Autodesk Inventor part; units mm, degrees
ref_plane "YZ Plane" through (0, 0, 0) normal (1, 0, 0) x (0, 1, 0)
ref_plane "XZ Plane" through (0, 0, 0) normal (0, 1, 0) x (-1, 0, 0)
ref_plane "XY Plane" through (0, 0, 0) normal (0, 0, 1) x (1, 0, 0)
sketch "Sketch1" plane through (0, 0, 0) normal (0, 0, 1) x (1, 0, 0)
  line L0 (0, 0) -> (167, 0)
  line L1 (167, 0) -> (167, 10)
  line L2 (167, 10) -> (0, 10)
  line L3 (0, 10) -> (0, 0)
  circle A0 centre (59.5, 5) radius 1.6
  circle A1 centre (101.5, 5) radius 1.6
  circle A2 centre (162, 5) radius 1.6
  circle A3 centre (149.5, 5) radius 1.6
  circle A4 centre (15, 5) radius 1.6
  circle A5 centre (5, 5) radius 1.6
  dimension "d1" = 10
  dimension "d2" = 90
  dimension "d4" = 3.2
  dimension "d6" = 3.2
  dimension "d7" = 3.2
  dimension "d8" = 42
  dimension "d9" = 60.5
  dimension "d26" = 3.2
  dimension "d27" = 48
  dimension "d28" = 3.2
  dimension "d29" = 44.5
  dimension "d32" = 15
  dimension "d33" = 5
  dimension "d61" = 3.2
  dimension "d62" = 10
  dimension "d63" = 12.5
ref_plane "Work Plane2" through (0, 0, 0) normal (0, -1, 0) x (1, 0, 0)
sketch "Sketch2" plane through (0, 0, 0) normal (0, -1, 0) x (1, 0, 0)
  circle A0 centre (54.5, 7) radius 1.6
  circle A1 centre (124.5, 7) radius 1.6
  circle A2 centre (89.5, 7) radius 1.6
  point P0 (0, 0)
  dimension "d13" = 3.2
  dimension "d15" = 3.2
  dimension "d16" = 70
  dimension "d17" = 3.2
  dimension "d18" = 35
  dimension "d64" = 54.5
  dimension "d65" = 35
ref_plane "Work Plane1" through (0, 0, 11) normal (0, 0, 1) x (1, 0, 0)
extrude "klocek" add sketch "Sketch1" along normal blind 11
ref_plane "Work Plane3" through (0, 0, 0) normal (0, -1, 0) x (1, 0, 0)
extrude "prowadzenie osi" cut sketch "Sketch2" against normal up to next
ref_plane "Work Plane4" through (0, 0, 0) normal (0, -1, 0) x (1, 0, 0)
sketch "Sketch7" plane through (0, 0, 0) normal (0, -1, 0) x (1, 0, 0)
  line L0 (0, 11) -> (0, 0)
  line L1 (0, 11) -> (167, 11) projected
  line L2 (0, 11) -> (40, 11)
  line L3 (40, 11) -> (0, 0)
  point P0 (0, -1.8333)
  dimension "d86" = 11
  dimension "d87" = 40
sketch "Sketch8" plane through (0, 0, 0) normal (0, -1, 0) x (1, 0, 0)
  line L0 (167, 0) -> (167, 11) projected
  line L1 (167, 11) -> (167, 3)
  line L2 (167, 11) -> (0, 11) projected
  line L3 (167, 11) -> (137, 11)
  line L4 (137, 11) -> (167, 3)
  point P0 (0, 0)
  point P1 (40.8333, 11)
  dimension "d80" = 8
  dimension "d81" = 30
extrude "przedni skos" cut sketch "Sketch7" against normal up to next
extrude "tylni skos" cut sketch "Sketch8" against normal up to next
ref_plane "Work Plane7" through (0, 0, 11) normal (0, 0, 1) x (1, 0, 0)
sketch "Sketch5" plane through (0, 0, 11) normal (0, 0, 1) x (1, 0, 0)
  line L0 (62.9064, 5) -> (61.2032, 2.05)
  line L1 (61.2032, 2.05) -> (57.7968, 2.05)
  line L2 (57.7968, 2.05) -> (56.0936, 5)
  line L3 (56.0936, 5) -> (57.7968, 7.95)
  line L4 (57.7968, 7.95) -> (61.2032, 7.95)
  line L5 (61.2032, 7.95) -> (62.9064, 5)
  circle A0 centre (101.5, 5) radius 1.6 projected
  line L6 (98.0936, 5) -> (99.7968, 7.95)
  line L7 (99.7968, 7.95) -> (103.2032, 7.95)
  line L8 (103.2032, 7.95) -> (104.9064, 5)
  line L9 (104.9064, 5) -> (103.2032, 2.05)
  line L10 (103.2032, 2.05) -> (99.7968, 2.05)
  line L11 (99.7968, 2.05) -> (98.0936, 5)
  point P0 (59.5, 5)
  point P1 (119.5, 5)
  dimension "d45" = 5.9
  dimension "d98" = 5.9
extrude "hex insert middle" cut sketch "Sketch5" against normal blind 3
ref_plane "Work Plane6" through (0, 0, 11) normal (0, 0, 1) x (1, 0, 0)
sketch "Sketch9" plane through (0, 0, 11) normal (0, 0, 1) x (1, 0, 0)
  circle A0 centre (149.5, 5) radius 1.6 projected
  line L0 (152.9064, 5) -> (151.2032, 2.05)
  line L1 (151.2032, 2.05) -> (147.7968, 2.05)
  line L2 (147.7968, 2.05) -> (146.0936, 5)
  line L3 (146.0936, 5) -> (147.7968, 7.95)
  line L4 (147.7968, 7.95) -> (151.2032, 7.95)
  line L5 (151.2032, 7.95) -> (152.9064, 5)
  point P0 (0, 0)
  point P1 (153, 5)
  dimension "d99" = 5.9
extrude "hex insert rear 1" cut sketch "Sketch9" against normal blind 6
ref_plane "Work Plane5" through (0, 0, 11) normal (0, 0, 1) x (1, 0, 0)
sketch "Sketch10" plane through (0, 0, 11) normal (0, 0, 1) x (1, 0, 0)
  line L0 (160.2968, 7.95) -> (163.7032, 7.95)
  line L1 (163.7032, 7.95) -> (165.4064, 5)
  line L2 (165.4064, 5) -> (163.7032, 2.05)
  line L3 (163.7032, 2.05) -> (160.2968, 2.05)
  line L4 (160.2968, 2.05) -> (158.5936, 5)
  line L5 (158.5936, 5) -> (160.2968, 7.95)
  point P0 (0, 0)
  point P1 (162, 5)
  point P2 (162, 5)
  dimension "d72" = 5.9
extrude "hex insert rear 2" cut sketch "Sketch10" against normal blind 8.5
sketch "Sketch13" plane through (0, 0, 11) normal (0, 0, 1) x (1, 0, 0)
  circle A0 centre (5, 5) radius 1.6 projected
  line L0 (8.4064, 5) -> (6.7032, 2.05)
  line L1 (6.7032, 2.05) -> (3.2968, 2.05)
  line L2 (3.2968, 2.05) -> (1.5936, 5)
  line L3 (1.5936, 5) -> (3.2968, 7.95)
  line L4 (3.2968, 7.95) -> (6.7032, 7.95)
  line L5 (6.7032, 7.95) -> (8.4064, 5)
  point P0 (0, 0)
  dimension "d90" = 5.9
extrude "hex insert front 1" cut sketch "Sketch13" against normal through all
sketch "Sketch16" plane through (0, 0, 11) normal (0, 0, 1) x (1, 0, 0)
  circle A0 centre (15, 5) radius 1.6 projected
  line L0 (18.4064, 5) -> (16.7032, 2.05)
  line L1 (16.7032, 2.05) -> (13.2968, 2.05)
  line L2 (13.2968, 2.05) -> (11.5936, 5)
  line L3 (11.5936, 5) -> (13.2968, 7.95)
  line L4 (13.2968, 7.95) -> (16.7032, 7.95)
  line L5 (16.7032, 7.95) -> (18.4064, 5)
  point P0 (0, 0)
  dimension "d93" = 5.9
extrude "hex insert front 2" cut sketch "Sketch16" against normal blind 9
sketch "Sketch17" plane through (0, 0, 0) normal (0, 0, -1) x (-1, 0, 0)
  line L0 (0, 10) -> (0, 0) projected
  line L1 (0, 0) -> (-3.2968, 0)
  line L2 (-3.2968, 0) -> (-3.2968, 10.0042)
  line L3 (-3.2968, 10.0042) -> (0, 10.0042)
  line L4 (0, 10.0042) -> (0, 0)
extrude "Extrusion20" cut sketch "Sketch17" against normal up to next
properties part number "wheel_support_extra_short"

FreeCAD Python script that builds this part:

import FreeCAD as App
import Part
import Sketcher
from FreeCAD import Vector
Q = App.Units.Quantity

doc = App.newDocument("Part")
body = doc.addObject("PartDesign::Body", "Body")

# Sketch on XY plane
sketch1 = body.newObject("Sketcher::SketchObject", "Sketch")
sketch1.AttachmentSupport = (doc.getObject("XY_Plane"), [""])
sketch1.MapMode = "FlatFace"
sketch1.addGeometry([
    Part.LineSegment(Vector(0, 10, 0), Vector(0, 0, 0)),  # 0
    Part.LineSegment(Vector(0, 0, 0), Vector(167, 0, 0)),  # 1
    Part.LineSegment(Vector(167, 0, 0), Vector(167, 10, 0)),  # 2
    Part.LineSegment(Vector(167, 10, 0), Vector(0, 10, 0)),  # 3
    Part.Circle(Vector(5, 5, 0), Vector(0, 0, 1), 1.6),  # 4
    Part.Circle(Vector(15, 5, 0), Vector(0, 0, 1), 1.6),  # 5
    Part.Circle(Vector(59.5, 5, 0), Vector(0, 0, 1), 1.6),  # 6
    Part.Circle(Vector(101.5, 5, 0), Vector(0, 0, 1), 1.6),  # 7
    Part.Circle(Vector(149.5, 5, 0), Vector(0, 0, 1), 1.6),  # 8
    Part.Circle(Vector(162, 5, 0), Vector(0, 0, 1), 1.6),  # 9
], False)
sketch1.addConstraint([
    Sketcher.Constraint("Coincident", 0, 2, 1, 1),
    Sketcher.Constraint("Coincident", 1, 2, 2, 1),
    Sketcher.Constraint("Coincident", 2, 2, 3, 1),
    Sketcher.Constraint("Coincident", 3, 2, 0, 1),
    Sketcher.Constraint("Vertical", 0),
    Sketcher.Constraint("Horizontal", 1),
    Sketcher.Constraint("Vertical", 2),
    Sketcher.Constraint("Horizontal", 3),
    Sketcher.Constraint("Coincident", 0, 2, -1, 1),
    Sketcher.Constraint("Equal", 4, 5),
    Sketcher.Constraint("Equal", 5, 6),
    Sketcher.Constraint("Equal", 6, 7),
    Sketcher.Constraint("Equal", 7, 8),
    Sketcher.Constraint("Equal", 8, 9),
    Sketcher.Constraint("Horizontal", 4, 3, 5, 3),
    Sketcher.Constraint("Horizontal", 5, 3, 6, 3),
    Sketcher.Constraint("Horizontal", 6, 3, 7, 3),
    Sketcher.Constraint("Horizontal", 7, 3, 8, 3),
    Sketcher.Constraint("Horizontal", 8, 3, 9, 3),
    Sketcher.Constraint("Diameter", 4, Q("3.2 mm")),
    Sketcher.Constraint("DistanceY", 0, 2, 0, 1, Q("10 mm")),
    Sketcher.Constraint("DistanceX", -1, 1, 4, 3, Q("5 mm")),
    Sketcher.Constraint("DistanceY", -1, 1, 4, 3, Q("5 mm")),
    Sketcher.Constraint("DistanceX", -1, 1, 5, 3, Q("15 mm")),
    Sketcher.Constraint("DistanceX", 6, 3, 7, 3, Q("42 mm")),
    Sketcher.Constraint("DistanceX", 7, 3, 8, 3, Q("48 mm")),
    Sketcher.Constraint("DistanceX", 9, 3, 1, 2, Q("5 mm")),
    Sketcher.Constraint("DistanceX", 5, 3, 6, 3, Q("44.5 mm")),
    Sketcher.Constraint("DistanceX", 8, 3, 9, 3, Q("12.5 mm")),
])
pad1 = body.newObject("PartDesign::Pad", "Pad")
pad1.Profile = sketch1
pad1.Length = 11

# Sketch on XZ plane
sketch2 = body.newObject("Sketcher::SketchObject", "Sketch001")
sketch2.AttachmentSupport = (doc.getObject("XZ_Plane"), [""])
sketch2.MapMode = "FlatFace"
sketch2.addGeometry([
    Part.Circle(Vector(54.5, 7, 0), Vector(0, 0, 1), 1.6),
    Part.Circle(Vector(124.5, 7, 0), Vector(0, 0, 1), 1.6),
    Part.Circle(Vector(89.5, 7, 0), Vector(0, 0, 1), 1.6),
], False)
sketch2.addConstraint([
    Sketcher.Constraint("Equal", 0, 1),
    Sketcher.Constraint("Equal", 1, 2),
    Sketcher.Constraint("Horizontal", 0, 3, 1, 3),
    Sketcher.Constraint("Horizontal", 1, 3, 2, 3),
    Sketcher.Constraint("Diameter", 0, Q("3.2 mm")),
    Sketcher.Constraint("DistanceX", 0, 3, 1, 3, Q("70 mm")),
    Sketcher.Constraint("DistanceX", 0, 3, 2, 3, Q("35 mm")),
    Sketcher.Constraint("DistanceX", -1, 1, 0, 3, Q("54.5 mm")),
    Sketcher.Constraint("DistanceY", -1, 1, 0, 3, Q("7 mm")),
])
pocket1 = body.newObject("PartDesign::Pocket", "Pocket")
pocket1.Profile = sketch2
pocket1.Type = "UpToFirst"

# Sketch on XZ plane
sketch3 = body.newObject("Sketcher::SketchObject", "Sketch002")
sketch3.AttachmentSupport = (doc.getObject("XZ_Plane"), [""])
sketch3.MapMode = "FlatFace"
sketch3.addGeometry([
    Part.LineSegment(Vector(40, 11, 0), Vector(0, 11, 0)),
    Part.LineSegment(Vector(0, 11, 0), Vector(0, 0, 0)),
    Part.LineSegment(Vector(0, 0, 0), Vector(40, 11, 0)),
], False)
sketch3.addConstraint([
    Sketcher.Constraint("Coincident", 0, 2, 1, 1),
    Sketcher.Constraint("Coincident", 1, 2, 2, 1),
    Sketcher.Constraint("Coincident", 2, 2, 0, 1),
    Sketcher.Constraint("Horizontal", 0),
    Sketcher.Constraint("Vertical", 1),
    Sketcher.Constraint("Coincident", 1, 2, -1, 1),
    Sketcher.Constraint("DistanceX", 0, 2, 0, 1, Q("40 mm")),
    Sketcher.Constraint("DistanceY", 1, 2, 1, 1, Q("11 mm")),
])
pocket2 = body.newObject("PartDesign::Pocket", "Pocket001")
pocket2.Profile = sketch3
pocket2.Type = "UpToFirst"

# Sketch on XZ plane
sketch4 = body.newObject("Sketcher::SketchObject", "Sketch003")
sketch4.AttachmentSupport = (doc.getObject("XZ_Plane"), [""])
sketch4.MapMode = "FlatFace"
sketch4.addGeometry([
    Part.LineSegment(Vector(137, 11, 0), Vector(167, 3, 0)),
    Part.LineSegment(Vector(167, 3, 0), Vector(167, 11, 0)),
    Part.LineSegment(Vector(167, 11, 0), Vector(137, 11, 0)),
], False)
sketch4.addConstraint([
    Sketcher.Constraint("Coincident", 0, 2, 1, 1),
    Sketcher.Constraint("Coincident", 1, 2, 2, 1),
    Sketcher.Constraint("Coincident", 2, 2, 0, 1),
    Sketcher.Constraint("Vertical", 1),
    Sketcher.Constraint("Horizontal", 2),
    Sketcher.Constraint("DistanceX", 2, 2, 2, 1, Q("30 mm")),
    Sketcher.Constraint("DistanceY", 1, 1, 1, 2, Q("8 mm")),
    Sketcher.Constraint("DistanceX", -1, 1, 0, 2, Q("167 mm")),
    Sketcher.Constraint("DistanceY", -1, 1, 0, 2, Q("3 mm")),
])
pocket3 = body.newObject("PartDesign::Pocket", "Pocket002")
pocket3.Profile = sketch4
pocket3.Type = "UpToFirst"

# Sketch on XY plane
sketch5 = body.newObject("Sketcher::SketchObject", "Sketch004")
sketch5.AttachmentSupport = (doc.getObject("XY_Plane"), [""])
sketch5.MapMode = "FlatFace"
sketch5.AttachmentOffset = App.Placement(Vector(0, 0, 11), App.Rotation())
sketch5.addGeometry([
    Part.LineSegment(Vector(61.2032, 2.05, 0), Vector(62.9064, 5, 0)),  # 0
    Part.LineSegment(Vector(62.9064, 5, 0), Vector(61.2032, 7.95, 0)),  # 1
    Part.LineSegment(Vector(61.2032, 7.95, 0), Vector(57.7968, 7.95, 0)),  # 2
    Part.LineSegment(Vector(57.7968, 7.95, 0), Vector(56.0936, 5, 0)),  # 3
    Part.LineSegment(Vector(56.0936, 5, 0), Vector(57.7968, 2.05, 0)),  # 4
    Part.LineSegment(Vector(57.7968, 2.05, 0), Vector(61.2032, 2.05, 0)),  # 5
    Part.LineSegment(Vector(99.7968, 7.95, 0), Vector(98.0936, 5, 0)),  # 6
    Part.LineSegment(Vector(98.0936, 5, 0), Vector(99.7968, 2.05, 0)),  # 7
    Part.LineSegment(Vector(99.7968, 2.05, 0), Vector(103.2032, 2.05, 0)),  # 8
    Part.LineSegment(Vector(103.2032, 2.05, 0), Vector(104.9064, 5, 0)),  # 9
    Part.LineSegment(Vector(104.9064, 5, 0), Vector(103.2032, 7.95, 0)),  # 10
    Part.LineSegment(Vector(103.2032, 7.95, 0), Vector(99.7968, 7.95, 0)),  # 11
    Part.Circle(Vector(101.5, 5, 0), Vector(0, 0, 1), 1.6),  # 12
], False)
sketch5.addConstraint([
    Sketcher.Constraint("Coincident", 0, 2, 1, 1),
    Sketcher.Constraint("Coincident", 1, 2, 2, 1),
    Sketcher.Constraint("Coincident", 2, 2, 3, 1),
    Sketcher.Constraint("Coincident", 3, 2, 4, 1),
    Sketcher.Constraint("Coincident", 4, 2, 5, 1),
    Sketcher.Constraint("Coincident", 5, 2, 0, 1),
    Sketcher.Constraint("Coincident", 6, 2, 7, 1),
    Sketcher.Constraint("Coincident", 7, 2, 8, 1),
    Sketcher.Constraint("Coincident", 8, 2, 9, 1),
    Sketcher.Constraint("Coincident", 9, 2, 10, 1),
    Sketcher.Constraint("Coincident", 10, 2, 11, 1),
    Sketcher.Constraint("Coincident", 11, 2, 6, 1),
    Sketcher.Constraint("Horizontal", 2),
    Sketcher.Constraint("Horizontal", 5),
    Sketcher.Constraint("Horizontal", 8),
    Sketcher.Constraint("Horizontal", 11),
    Sketcher.Constraint("Parallel", 0, 3),
    Sketcher.Constraint("Parallel", 1, 4),
    Sketcher.Constraint("Parallel", 3, 6),
    Sketcher.Constraint("Parallel", 4, 7),
    Sketcher.Constraint("Parallel", 6, 9),
    Sketcher.Constraint("Parallel", 7, 10),
    Sketcher.Constraint("Horizontal", 12, 3, 0, 2),
    Sketcher.Constraint("Horizontal", 0, 2, 3, 2),
    Sketcher.Constraint("Horizontal", 3, 2, 6, 2),
    Sketcher.Constraint("Horizontal", 5, 2, 7, 2),
    Sketcher.Constraint("Horizontal", 6, 2, 9, 2),
    Sketcher.Constraint("Horizontal", 2, 2, 10, 2),
    Sketcher.Constraint("Vertical", 2, 2, 4, 2),
    Sketcher.Constraint("Vertical", 1, 2, 5, 2),
    Sketcher.Constraint("Equal", 5, 8),
    Sketcher.Constraint("Diameter", 12, Q("3.2 mm")),
    Sketcher.Constraint("DistanceY", 4, 2, 2, 2, Q("5.9 mm")),
    Sketcher.Constraint("Angle", 0, Q("59.9998 deg")),
    Sketcher.Constraint("DistanceY", -1, 1, 12, 3, Q("5 mm")),
    Sketcher.Constraint("DistanceX", 5, 2, 8, 2, Q("42 mm")),
    Sketcher.Constraint("DistanceX", -1, 1, 12, 3, Q("101.5 mm")),
    Sketcher.Constraint("DistanceX", 2, 2, 2, 1, Q("3.4064 mm")),
    Sketcher.Constraint("DistanceX", -1, 1, 0, 2, Q("62.9064 mm")),
])
pocket4 = body.newObject("PartDesign::Pocket", "Pocket003")
pocket4.Profile = sketch5
pocket4.Length = 3

# Sketch on XY plane
sketch6 = body.newObject("Sketcher::SketchObject", "Sketch005")
sketch6.AttachmentSupport = (doc.getObject("XY_Plane"), [""])
sketch6.MapMode = "FlatFace"
sketch6.AttachmentOffset = App.Placement(Vector(0, 0, 11), App.Rotation())
sketch6.addGeometry([
    Part.LineSegment(Vector(151.2032, 2.05, 0), Vector(152.9064, 5, 0)),  # 0
    Part.LineSegment(Vector(152.9064, 5, 0), Vector(151.2032, 7.95, 0)),  # 1
    Part.LineSegment(Vector(151.2032, 7.95, 0), Vector(147.7968, 7.95, 0)),  # 2
    Part.LineSegment(Vector(147.7968, 7.95, 0), Vector(146.0936, 5, 0)),  # 3
    Part.LineSegment(Vector(146.0936, 5, 0), Vector(147.7968, 2.05, 0)),  # 4
    Part.LineSegment(Vector(147.7968, 2.05, 0), Vector(151.2032, 2.05, 0)),  # 5
    Part.Circle(Vector(149.5, 5, 0), Vector(0, 0, 1), 1.6),  # 6
], False)
sketch6.addConstraint([
    Sketcher.Constraint("Coincident", 0, 2, 1, 1),
    Sketcher.Constraint("Coincident", 1, 2, 2, 1),
    Sketcher.Constraint("Coincident", 2, 2, 3, 1),
    Sketcher.Constraint("Coincident", 3, 2, 4, 1),
    Sketcher.Constraint("Coincident", 4, 2, 5, 1),
    Sketcher.Constraint("Coincident", 5, 2, 0, 1),
    Sketcher.Constraint("Horizontal", 2),
    Sketcher.Constraint("Horizontal", 5),
    Sketcher.Constraint("Parallel", 0, 3),
    Sketcher.Constraint("Parallel", 1, 4),
    Sketcher.Constraint("Horizontal", 6, 3, 0, 2),
    Sketcher.Constraint("Horizontal", 0, 2, 3, 2),
    Sketcher.Constraint("Vertical", 2, 2, 4, 2),
    Sketcher.Constraint("Vertical", 1, 2, 5, 2),
    Sketcher.Constraint("Diameter", 6, Q("3.2 mm")),
    Sketcher.Constraint("DistanceY", 4, 2, 2, 2, Q("5.9 mm")),
    Sketcher.Constraint("Angle", 0, Q("59.9998 deg")),
    Sketcher.Constraint("DistanceY", -1, 1, 6, 3, Q("5 mm")),
    Sketcher.Constraint("DistanceX", -1, 1, 6, 3, Q("149.5 mm")),
    Sketcher.Constraint("DistanceX", 2, 2, 2, 1, Q("3.4064 mm")),
    Sketcher.Constraint("DistanceX", -1, 1, 0, 2, Q("152.9064 mm")),
])
pocket5 = body.newObject("PartDesign::Pocket", "Pocket004")
pocket5.Profile = sketch6
pocket5.Length = 6

# Sketch on XY plane
sketch7 = body.newObject("Sketcher::SketchObject", "Sketch006")
sketch7.AttachmentSupport = (doc.getObject("XY_Plane"), [""])
sketch7.MapMode = "FlatFace"
sketch7.AttachmentOffset = App.Placement(Vector(0, 0, 11), App.Rotation())
sketch7.addGeometry([
    Part.LineSegment(Vector(163.7032, 7.95, 0), Vector(160.2968, 7.95, 0)),  # 0
    Part.LineSegment(Vector(160.2968, 7.95, 0), Vector(158.5936, 5, 0)),  # 1
    Part.LineSegment(Vector(158.5936, 5, 0), Vector(160.2968, 2.05, 0)),  # 2
    Part.LineSegment(Vector(160.2968, 2.05, 0), Vector(163.7032, 2.05, 0)),  # 3
    Part.LineSegment(Vector(163.7032, 2.05, 0), Vector(165.4064, 5, 0)),  # 4
    Part.LineSegment(Vector(165.4064, 5, 0), Vector(163.7032, 7.95, 0)),  # 5
], False)
sketch7.addConstraint([
    Sketcher.Constraint("Coincident", 0, 2, 1, 1),
    Sketcher.Constraint("Coincident", 1, 2, 2, 1),
    Sketcher.Constraint("Coincident", 2, 2, 3, 1),
    Sketcher.Constraint("Coincident", 3, 2, 4, 1),
    Sketcher.Constraint("Coincident", 4, 2, 5, 1),
    Sketcher.Constraint("Coincident", 5, 2, 0, 1),
    Sketcher.Constraint("Horizontal", 0),
    Sketcher.Constraint("Horizontal", 3),
    Sketcher.Constraint("Parallel", 1, 4),
    Sketcher.Constraint("Parallel", 2, 5),
    Sketcher.Constraint("Horizontal", 1, 2, 4, 2),
    Sketcher.Constraint("Vertical", 0, 2, 2, 2),
    Sketcher.Constraint("Vertical", 3, 2, 5, 2),
    Sketcher.Constraint("DistanceY", 2, 2, 0, 2, Q("5.9 mm")),
    Sketcher.Constraint("Angle", 1, Q("-120.0002 deg")),
    Sketcher.Constraint("DistanceY", -1, 1, 1, 2, Q("5 mm")),
    Sketcher.Constraint("DistanceX", 0, 2, 0, 1, Q("3.4064 mm")),
    Sketcher.Constraint("DistanceX", -1, 1, 0, 2, Q("160.2968 mm")),
])
pocket6 = body.newObject("PartDesign::Pocket", "Pocket005")
pocket6.Profile = sketch7
pocket6.Length = 8.5

# Sketch on XY plane
sketch8 = body.newObject("Sketcher::SketchObject", "Sketch007")
sketch8.AttachmentSupport = (doc.getObject("XY_Plane"), [""])
sketch8.MapMode = "FlatFace"
sketch8.AttachmentOffset = App.Placement(Vector(0, 0, 11), App.Rotation())
sketch8.addGeometry([
    Part.LineSegment(Vector(6.7032, 2.05, 0), Vector(8.4064, 5, 0)),  # 0
    Part.LineSegment(Vector(8.4064, 5, 0), Vector(6.7032, 7.95, 0)),  # 1
    Part.LineSegment(Vector(6.7032, 7.95, 0), Vector(3.2968, 7.95, 0)),  # 2
    Part.LineSegment(Vector(3.2968, 7.95, 0), Vector(1.5936, 5, 0)),  # 3
    Part.LineSegment(Vector(1.5936, 5, 0), Vector(3.2968, 2.05, 0)),  # 4
    Part.LineSegment(Vector(3.2968, 2.05, 0), Vector(6.7032, 2.05, 0)),  # 5
    Part.Circle(Vector(5, 5, 0), Vector(0, 0, 1), 1.6),  # 6
], False)
sketch8.addConstraint([
    Sketcher.Constraint("Coincident", 0, 2, 1, 1),
    Sketcher.Constraint("Coincident", 1, 2, 2, 1),
    Sketcher.Constraint("Coincident", 2, 2, 3, 1),
    Sketcher.Constraint("Coincident", 3, 2, 4, 1),
    Sketcher.Constraint("Coincident", 4, 2, 5, 1),
    Sketcher.Constraint("Coincident", 5, 2, 0, 1),
    Sketcher.Constraint("Horizontal", 2),
    Sketcher.Constraint("Horizontal", 5),
    Sketcher.Constraint("Parallel", 0, 3),
    Sketcher.Constraint("Parallel", 1, 4),
    Sketcher.Constraint("Horizontal", 6, 3, 0, 2),
    Sketcher.Constraint("Horizontal", 0, 2, 3, 2),
    Sketcher.Constraint("Vertical", 2, 2, 4, 2),
    Sketcher.Constraint("Vertical", 1, 2, 5, 2),
    Sketcher.Constraint("Diameter", 6, Q("3.2 mm")),
    Sketcher.Constraint("DistanceY", 4, 2, 2, 2, Q("5.9 mm")),
    Sketcher.Constraint("Angle", 0, Q("59.9998 deg")),
    Sketcher.Constraint("DistanceX", -1, 1, 6, 3, Q("5 mm")),
    Sketcher.Constraint("DistanceY", -1, 1, 6, 3, Q("5 mm")),
    Sketcher.Constraint("DistanceX", 2, 2, 2, 1, Q("3.4064 mm")),
    Sketcher.Constraint("DistanceX", -1, 1, 0, 2, Q("8.4064 mm")),
])
pocket7 = body.newObject("PartDesign::Pocket", "Pocket006")
pocket7.Profile = sketch8
pocket7.Type = "ThroughAll"

# Sketch on XY plane
sketch9 = body.newObject("Sketcher::SketchObject", "Sketch008")
sketch9.AttachmentSupport = (doc.getObject("XY_Plane"), [""])
sketch9.MapMode = "FlatFace"
sketch9.AttachmentOffset = App.Placement(Vector(0, 0, 11), App.Rotation())
sketch9.addGeometry([
    Part.LineSegment(Vector(16.7032, 2.05, 0), Vector(18.4064, 5, 0)),  # 0
    Part.LineSegment(Vector(18.4064, 5, 0), Vector(16.7032, 7.95, 0)),  # 1
    Part.LineSegment(Vector(16.7032, 7.95, 0), Vector(13.2968, 7.95, 0)),  # 2
    Part.LineSegment(Vector(13.2968, 7.95, 0), Vector(11.5936, 5, 0)),  # 3
    Part.LineSegment(Vector(11.5936, 5, 0), Vector(13.2968, 2.05, 0)),  # 4
    Part.LineSegment(Vector(13.2968, 2.05, 0), Vector(16.7032, 2.05, 0)),  # 5
    Part.Circle(Vector(15, 5, 0), Vector(0, 0, 1), 1.6),  # 6
], False)
sketch9.addConstraint([
    Sketcher.Constraint("Coincident", 0, 2, 1, 1),
    Sketcher.Constraint("Coincident", 1, 2, 2, 1),
    Sketcher.Constraint("Coincident", 2, 2, 3, 1),
    Sketcher.Constraint("Coincident", 3, 2, 4, 1),
    Sketcher.Constraint("Coincident", 4, 2, 5, 1),
    Sketcher.Constraint("Coincident", 5, 2, 0, 1),
    Sketcher.Constraint("Horizontal", 2),
    Sketcher.Constraint("Horizontal", 5),
    Sketcher.Constraint("Parallel", 0, 3),
    Sketcher.Constraint("Parallel", 1, 4),
    Sketcher.Constraint("Horizontal", 6, 3, 0, 2),
    Sketcher.Constraint("Horizontal", 0, 2, 3, 2),
    Sketcher.Constraint("Vertical", 2, 2, 4, 2),
    Sketcher.Constraint("Vertical", 1, 2, 5, 2),
    Sketcher.Constraint("Diameter", 6, Q("3.2 mm")),
    Sketcher.Constraint("DistanceY", 4, 2, 2, 2, Q("5.9 mm")),
    Sketcher.Constraint("Angle", 0, Q("59.9998 deg")),
    Sketcher.Constraint("DistanceX", -1, 1, 6, 3, Q("15 mm")),
    Sketcher.Constraint("DistanceY", -1, 1, 6, 3, Q("5 mm")),
    Sketcher.Constraint("DistanceX", 2, 2, 2, 1, Q("3.4064 mm")),
    Sketcher.Constraint("DistanceX", -1, 1, 0, 2, Q("18.4064 mm")),
])
pocket8 = body.newObject("PartDesign::Pocket", "Pocket007")
pocket8.Profile = sketch9
pocket8.Length = 9

# Sketch on XY plane
sketch10 = body.newObject("Sketcher::SketchObject", "Sketch009")
sketch10.AttachmentSupport = (doc.getObject("XY_Plane"), [""])
sketch10.MapMode = "FlatFace"
sketch10.addGeometry([
    Part.LineSegment(Vector(0, 0, 0), Vector(0, 10.0042, 0)),
    Part.LineSegment(Vector(0, 10.0042, 0), Vector(3.2968, 10.0042, 0)),
    Part.LineSegment(Vector(3.2968, 10.0042, 0), Vector(3.2968, 0, 0)),
    Part.LineSegment(Vector(3.2968, 0, 0), Vector(0, 0, 0)),
], False)
sketch10.addConstraint([
    Sketcher.Constraint("Coincident", 0, 2, 1, 1),
    Sketcher.Constraint("Coincident", 1, 2, 2, 1),
    Sketcher.Constraint("Coincident", 2, 2, 3, 1),
    Sketcher.Constraint("Coincident", 3, 2, 0, 1),
    Sketcher.Constraint("Vertical", 0),
    Sketcher.Constraint("Horizontal", 1),
    Sketcher.Constraint("Vertical", 2),
    Sketcher.Constraint("Horizontal", 3),
    Sketcher.Constraint("Coincident", 3, 2, -1, 1),
    Sketcher.Constraint("DistanceX", 1, 1, 1, 2, Q("3.2968 mm")),
    Sketcher.Constraint("DistanceY", 0, 1, 0, 2, Q("10.0042 mm")),
])
pocket9 = body.newObject("PartDesign::Pocket", "Pocket008")
pocket9.Profile = sketch10
pocket9.Length = 0.9066
pocket9.Reversed = True

doc.recompute()
